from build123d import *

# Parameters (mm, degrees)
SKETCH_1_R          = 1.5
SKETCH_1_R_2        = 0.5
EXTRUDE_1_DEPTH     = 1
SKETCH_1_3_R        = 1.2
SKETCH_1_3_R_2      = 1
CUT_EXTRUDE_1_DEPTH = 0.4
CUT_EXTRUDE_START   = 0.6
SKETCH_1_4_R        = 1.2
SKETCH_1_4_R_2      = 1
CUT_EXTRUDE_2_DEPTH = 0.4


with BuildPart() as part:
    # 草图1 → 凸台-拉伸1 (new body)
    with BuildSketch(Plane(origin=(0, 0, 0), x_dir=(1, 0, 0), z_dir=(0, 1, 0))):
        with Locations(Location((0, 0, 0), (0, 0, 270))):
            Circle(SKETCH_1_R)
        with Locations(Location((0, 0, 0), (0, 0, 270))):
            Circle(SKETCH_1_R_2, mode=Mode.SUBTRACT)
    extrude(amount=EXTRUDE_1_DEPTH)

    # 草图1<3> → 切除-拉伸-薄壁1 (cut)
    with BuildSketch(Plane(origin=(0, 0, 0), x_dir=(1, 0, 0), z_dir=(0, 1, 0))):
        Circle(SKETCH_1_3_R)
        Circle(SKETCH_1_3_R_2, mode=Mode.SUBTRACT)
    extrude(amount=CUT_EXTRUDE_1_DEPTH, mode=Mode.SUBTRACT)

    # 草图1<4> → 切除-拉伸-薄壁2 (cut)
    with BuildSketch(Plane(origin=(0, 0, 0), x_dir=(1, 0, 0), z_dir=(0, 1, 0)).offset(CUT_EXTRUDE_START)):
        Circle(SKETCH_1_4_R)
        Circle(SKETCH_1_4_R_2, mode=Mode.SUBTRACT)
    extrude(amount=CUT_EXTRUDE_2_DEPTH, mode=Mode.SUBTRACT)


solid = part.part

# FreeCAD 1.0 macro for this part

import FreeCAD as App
import Part
import Sketcher
from FreeCAD import Vector
Q = App.Units.Quantity

doc = App.newDocument("Part")
body = doc.addObject("PartDesign::Body", "Body")

sketch1 = body.newObject("Sketcher::SketchObject", "Sketch")
sketch1.AttachmentSupport = (doc.getObject("XZ_Plane"), [""])
sketch1.MapMode = "FlatFace"
sketch1.addGeometry(Part.Circle(Vector(0, 0, 0), Vector(0, 0, 1), 1.5), False)
sketch1.addGeometry(Part.Circle(Vector(0, 0, 0), Vector(0, 0, 1), 0.5), False)
sketch1.addConstraint(Sketcher.Constraint("Coincident", 0, 3, -1, 1))
sketch1.addConstraint(Sketcher.Constraint("Coincident", 1, 3, -1, 1))
sketch1.addConstraint(Sketcher.Constraint("Diameter", 0, Q("3 mm")))
sketch1.addConstraint(Sketcher.Constraint("Diameter", 1, Q("1 mm")))
pad1 = body.newObject("PartDesign::Pad", "Pad")
pad1.Profile = sketch1
pad1.Length = 1
pad1.Reversed = True

sketch2 = body.newObject("Sketcher::SketchObject", "Sketch001")
sketch2.AttachmentSupport = (doc.getObject("XZ_Plane"), [""])
sketch2.MapMode = "FlatFace"
sketch2.addGeometry(Part.Circle(Vector(0, 0, 0), Vector(0, 0, 1), 1.2), False)
sketch2.addGeometry(Part.Circle(Vector(0, 0, 0), Vector(0, 0, 1), 1), False)
sketch2.addConstraint(Sketcher.Constraint("Coincident", 0, 3, -1, 1))
sketch2.addConstraint(Sketcher.Constraint("Coincident", 1, 3, -1, 1))
sketch2.addConstraint(Sketcher.Constraint("Diameter", 1, Q("2 mm")))
sketch2.addConstraint(Sketcher.Constraint("Diameter", 0, Q("2.4 mm")))
pocket1 = body.newObject("PartDesign::Pocket", "Pocket")
pocket1.Profile = sketch2
pocket1.Length = 0.4

sketch3 = body.newObject("Sketcher::SketchObject", "Sketch002")
sketch3.AttachmentSupport = (doc.getObject("XZ_Plane"), [""])
sketch3.MapMode = "FlatFace"
sketch3.AttachmentOffset = App.Placement(Vector(0, 0, -0.6), App.Rotation())
sketch3.addGeometry(Part.Circle(Vector(0, 0, 0), Vector(0, 0, 1), 1.2), False)
sketch3.addGeometry(Part.Circle(Vector(0, 0, 0), Vector(0, 0, 1), 1), False)
sketch3.addConstraint(Sketcher.Constraint("Coincident", 0, 3, -1, 1))
sketch3.addConstraint(Sketcher.Constraint("Coincident", 1, 3, -1, 1))
sketch3.addConstraint(Sketcher.Constraint("Diameter", 1, Q("2 mm")))
sketch3.addConstraint(Sketcher.Constraint("Diameter", 0, Q("2.4 mm")))
pocket2 = body.newObject("PartDesign::Pocket", "Pocket001")
pocket2.Profile = sketch3
pocket2.Length = 0.4

doc.recompute()
